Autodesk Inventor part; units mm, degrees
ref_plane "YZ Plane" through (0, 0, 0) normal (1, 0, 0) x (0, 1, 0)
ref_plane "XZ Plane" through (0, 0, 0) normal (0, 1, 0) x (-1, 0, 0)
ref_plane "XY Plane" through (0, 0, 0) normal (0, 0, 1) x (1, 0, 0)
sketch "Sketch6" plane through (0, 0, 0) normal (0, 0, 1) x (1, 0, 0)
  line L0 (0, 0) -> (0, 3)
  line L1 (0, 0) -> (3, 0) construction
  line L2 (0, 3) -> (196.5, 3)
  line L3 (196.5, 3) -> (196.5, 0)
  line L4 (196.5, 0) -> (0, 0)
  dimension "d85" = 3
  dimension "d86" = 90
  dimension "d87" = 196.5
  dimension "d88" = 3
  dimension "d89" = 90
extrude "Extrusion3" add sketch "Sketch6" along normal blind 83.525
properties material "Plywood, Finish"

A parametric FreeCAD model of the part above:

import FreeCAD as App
import Part
import Sketcher
Q = App.Units.Quantity


def add_polygon(sketch, points):
    """Adds a closed chain of lines whose ends are joined by coincident constraints."""
    first, n = sketch.GeometryCount, len(points)
    for a, b in zip(points, points[1:] + points[:1]):
        sketch.addGeometry(Part.LineSegment(App.Vector(*a, 0), App.Vector(*b, 0)), False)
    for i in range(n):
        sketch.addConstraint(Sketcher.Constraint("Coincident", first + i, 2, first + (i + 1) % n, 1))

doc = App.newDocument("Part")
params = doc.addObject("Spreadsheet::Sheet", "Params")
for row, (alias, value) in enumerate([
    ("sketch1_height", "3 mm"),
    ("sketch1_width", "196.5 mm"),
    ("pad1_length", "83.525 mm"),
], start=1):
    params.set(f"A{row}", alias)
    params.set(f"B{row}", "=" + value)
    params.setAlias(f"B{row}", alias)

body = doc.addObject("PartDesign::Body", "Body")

# Sketch on XY plane
sketch1 = body.newObject("Sketcher::SketchObject", "Sketch")
sketch1.AttachmentSupport = (doc.getObject("XY_Plane"), [""])
sketch1.MapMode = "FlatFace"
add_polygon(sketch1, [(0, 3), (0, 0), (196.5, 0), (196.5, 3)])  # lines 0-3
sketch1.addConstraint([
    Sketcher.Constraint("Vertical", 0),
    Sketcher.Constraint("Horizontal", 1),
    Sketcher.Constraint("Vertical", 2),
    Sketcher.Constraint("Horizontal", 3),
    Sketcher.Constraint("Coincident", 0, 2, -1, 1),
    Sketcher.Constraint("DistanceY", 0, 2, 0, 1, Q("3 mm")),
    Sketcher.Constraint("DistanceX", 1, 1, 1, 2, Q("196.5 mm")),
])
sketch1.setExpression("Constraints[9]", "Params.sketch1_height")
sketch1.setExpression("Constraints[10]", "Params.sketch1_width")
pad1 = body.newObject("PartDesign::Pad", "Pad")
pad1.Profile = sketch1
pad1.setExpression("Length", "Params.pad1_length")

doc.recompute()
